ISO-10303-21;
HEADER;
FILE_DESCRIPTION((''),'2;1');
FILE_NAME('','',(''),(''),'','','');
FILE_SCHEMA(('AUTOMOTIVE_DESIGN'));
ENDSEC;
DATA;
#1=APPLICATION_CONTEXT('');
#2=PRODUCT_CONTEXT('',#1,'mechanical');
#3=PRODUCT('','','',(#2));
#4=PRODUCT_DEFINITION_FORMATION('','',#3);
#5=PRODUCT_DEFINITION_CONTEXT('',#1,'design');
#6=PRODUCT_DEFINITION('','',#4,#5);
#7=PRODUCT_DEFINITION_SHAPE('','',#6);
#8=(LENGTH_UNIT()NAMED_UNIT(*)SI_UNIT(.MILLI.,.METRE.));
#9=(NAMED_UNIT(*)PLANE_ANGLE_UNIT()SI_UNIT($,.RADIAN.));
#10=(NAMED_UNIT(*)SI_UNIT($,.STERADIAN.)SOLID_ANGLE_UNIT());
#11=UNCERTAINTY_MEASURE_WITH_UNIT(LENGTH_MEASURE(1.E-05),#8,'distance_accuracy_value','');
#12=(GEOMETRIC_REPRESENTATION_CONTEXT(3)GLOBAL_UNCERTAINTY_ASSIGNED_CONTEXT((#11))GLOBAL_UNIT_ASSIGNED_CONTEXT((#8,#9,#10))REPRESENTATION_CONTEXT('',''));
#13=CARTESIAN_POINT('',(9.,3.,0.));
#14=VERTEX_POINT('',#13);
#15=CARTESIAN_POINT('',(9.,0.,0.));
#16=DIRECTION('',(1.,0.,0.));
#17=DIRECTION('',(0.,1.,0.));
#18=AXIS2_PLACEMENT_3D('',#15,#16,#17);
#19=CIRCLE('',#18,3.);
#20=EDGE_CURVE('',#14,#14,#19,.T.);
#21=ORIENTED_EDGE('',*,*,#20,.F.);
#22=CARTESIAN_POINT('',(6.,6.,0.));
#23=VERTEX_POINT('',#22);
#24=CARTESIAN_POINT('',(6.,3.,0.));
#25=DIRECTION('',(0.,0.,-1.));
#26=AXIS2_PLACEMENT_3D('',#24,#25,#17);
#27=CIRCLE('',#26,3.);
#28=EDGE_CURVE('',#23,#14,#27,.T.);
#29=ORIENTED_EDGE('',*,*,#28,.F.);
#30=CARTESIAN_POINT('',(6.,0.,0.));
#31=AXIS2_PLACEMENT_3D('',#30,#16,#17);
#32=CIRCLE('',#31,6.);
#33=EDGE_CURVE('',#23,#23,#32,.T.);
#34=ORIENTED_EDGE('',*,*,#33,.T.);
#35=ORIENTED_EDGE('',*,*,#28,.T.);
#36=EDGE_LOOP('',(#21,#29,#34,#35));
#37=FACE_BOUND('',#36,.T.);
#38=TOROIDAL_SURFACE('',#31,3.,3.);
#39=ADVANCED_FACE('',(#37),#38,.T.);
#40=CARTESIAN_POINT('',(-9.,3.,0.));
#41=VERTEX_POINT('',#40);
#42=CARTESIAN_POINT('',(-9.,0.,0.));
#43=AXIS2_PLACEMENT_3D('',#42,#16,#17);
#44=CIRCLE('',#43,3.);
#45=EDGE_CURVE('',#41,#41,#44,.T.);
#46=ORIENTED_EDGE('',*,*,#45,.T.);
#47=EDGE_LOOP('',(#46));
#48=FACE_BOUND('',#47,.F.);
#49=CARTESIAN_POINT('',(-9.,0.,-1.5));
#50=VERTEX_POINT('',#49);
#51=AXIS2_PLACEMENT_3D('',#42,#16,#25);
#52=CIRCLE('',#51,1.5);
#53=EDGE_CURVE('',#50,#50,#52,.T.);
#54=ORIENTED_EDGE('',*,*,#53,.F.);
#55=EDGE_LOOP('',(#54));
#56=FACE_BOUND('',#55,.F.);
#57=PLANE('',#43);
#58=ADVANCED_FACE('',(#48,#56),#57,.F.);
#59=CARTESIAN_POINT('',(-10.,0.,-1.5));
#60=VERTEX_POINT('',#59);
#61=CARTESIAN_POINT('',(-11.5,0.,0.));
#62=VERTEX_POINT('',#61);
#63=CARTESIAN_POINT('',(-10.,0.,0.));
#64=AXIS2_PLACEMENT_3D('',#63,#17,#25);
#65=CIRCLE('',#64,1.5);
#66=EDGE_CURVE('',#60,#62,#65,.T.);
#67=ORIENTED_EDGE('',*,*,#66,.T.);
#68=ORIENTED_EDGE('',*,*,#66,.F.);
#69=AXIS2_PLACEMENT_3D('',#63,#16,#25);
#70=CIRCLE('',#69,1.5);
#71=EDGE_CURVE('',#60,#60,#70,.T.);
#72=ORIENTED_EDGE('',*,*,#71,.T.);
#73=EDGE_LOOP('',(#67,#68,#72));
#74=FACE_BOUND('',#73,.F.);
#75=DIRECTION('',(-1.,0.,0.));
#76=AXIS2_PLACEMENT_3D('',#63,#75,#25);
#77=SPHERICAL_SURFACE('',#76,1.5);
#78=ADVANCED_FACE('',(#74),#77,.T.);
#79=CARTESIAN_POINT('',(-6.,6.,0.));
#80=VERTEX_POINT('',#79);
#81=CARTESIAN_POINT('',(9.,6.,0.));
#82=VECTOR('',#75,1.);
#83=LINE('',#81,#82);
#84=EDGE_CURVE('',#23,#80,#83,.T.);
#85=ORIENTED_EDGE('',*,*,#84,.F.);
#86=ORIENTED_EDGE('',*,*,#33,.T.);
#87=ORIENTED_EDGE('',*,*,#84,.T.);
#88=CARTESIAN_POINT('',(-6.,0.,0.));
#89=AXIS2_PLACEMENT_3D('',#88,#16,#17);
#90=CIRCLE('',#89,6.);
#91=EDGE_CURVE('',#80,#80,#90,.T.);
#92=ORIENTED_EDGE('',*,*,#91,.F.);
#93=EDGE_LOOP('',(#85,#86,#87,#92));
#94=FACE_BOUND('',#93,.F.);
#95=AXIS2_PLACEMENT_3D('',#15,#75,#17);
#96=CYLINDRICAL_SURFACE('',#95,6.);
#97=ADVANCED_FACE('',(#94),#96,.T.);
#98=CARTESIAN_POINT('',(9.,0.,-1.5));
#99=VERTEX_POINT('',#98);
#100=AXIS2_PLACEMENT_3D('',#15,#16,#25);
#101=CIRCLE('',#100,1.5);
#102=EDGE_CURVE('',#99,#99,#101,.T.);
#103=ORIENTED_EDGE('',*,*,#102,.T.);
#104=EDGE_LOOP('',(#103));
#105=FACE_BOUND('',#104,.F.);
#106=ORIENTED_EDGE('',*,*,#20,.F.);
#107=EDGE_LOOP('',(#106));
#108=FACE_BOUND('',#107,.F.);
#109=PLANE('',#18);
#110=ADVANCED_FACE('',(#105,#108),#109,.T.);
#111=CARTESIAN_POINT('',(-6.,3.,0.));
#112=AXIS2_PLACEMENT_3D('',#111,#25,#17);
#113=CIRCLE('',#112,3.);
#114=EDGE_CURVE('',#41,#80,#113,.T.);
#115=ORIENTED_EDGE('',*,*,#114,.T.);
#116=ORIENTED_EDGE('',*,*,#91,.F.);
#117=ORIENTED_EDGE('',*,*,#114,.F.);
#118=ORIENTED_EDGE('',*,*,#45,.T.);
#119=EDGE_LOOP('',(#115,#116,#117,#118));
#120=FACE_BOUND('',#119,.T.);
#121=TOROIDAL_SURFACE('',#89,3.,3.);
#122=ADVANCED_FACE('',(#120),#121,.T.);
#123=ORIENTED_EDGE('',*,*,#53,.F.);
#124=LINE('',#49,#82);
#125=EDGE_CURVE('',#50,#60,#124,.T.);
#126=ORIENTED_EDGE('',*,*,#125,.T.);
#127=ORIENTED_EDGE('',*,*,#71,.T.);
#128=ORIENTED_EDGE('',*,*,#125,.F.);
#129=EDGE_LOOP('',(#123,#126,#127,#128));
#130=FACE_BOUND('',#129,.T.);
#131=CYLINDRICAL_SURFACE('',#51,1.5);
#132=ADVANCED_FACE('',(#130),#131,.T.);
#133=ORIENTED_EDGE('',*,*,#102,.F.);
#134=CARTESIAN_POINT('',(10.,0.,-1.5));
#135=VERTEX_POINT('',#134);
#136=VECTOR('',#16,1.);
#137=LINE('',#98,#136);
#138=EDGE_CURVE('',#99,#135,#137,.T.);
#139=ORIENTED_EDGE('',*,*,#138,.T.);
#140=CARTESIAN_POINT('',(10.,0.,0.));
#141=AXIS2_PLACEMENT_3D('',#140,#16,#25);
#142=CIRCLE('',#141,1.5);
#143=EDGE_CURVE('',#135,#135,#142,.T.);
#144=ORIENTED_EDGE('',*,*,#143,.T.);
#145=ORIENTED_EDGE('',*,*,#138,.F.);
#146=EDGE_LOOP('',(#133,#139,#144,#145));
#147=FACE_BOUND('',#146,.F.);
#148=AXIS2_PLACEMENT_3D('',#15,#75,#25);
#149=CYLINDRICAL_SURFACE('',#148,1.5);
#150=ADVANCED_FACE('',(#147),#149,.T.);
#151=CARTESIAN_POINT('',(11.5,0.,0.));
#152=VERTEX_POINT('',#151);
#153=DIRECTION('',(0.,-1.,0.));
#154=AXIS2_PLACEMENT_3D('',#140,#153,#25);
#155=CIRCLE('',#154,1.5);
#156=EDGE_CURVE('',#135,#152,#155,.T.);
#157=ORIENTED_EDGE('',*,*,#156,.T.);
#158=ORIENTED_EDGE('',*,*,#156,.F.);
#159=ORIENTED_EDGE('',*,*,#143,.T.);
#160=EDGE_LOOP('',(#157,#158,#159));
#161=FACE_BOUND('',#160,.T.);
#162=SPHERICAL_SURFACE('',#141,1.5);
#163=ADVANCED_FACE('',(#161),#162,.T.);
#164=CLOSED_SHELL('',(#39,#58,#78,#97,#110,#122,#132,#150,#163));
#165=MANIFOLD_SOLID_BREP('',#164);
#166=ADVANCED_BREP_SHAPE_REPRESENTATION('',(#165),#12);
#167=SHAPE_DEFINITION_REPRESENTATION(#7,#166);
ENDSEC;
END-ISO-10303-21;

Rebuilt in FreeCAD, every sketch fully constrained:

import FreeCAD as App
import Part
import Sketcher

V = App.Vector


def edges_at(feature, points):
    """Names of the edges that pass closest to the given points."""
    edges = feature.Shape.Edges
    near = lambda p: min(range(len(edges)), key=lambda i: edges[i].distToShape(Part.Vertex(*p))[0])
    return sorted({f"Edge{near(p) + 1}" for p in points})


def add_polygon(sketch, points):
    """Adds a closed chain of lines whose ends are joined by coincident constraints."""
    first, n = sketch.GeometryCount, len(points)
    for a, b in zip(points, points[1:] + points[:1]):
        sketch.addGeometry(Part.LineSegment(App.Vector(*a, 0), App.Vector(*b, 0)), False)
    for i in range(n):
        sketch.addConstraint(Sketcher.Constraint("Coincident", first + i, 2, first + (i + 1) % n, 1))

doc = App.newDocument("Part")
body = doc.addObject("PartDesign::Body", "Body")

# Sketch on XY plane
sketch1 = body.newObject("Sketcher::SketchObject", "Sketch")
sketch1.AttachmentSupport = (doc.getObject("XY_Plane"), [""])
sketch1.MapMode = "FlatFace"
add_polygon(sketch1, [(-9, 0), (9, 0), (9, 6), (-9, 6)])  # lines 0-3
sketch1.addConstraint(Sketcher.Constraint("Horizontal", 0))
sketch1.addConstraint(Sketcher.Constraint("Vertical", 1))
sketch1.addConstraint(Sketcher.Constraint("Horizontal", 2))
sketch1.addConstraint(Sketcher.Constraint("Vertical", 3))
sketch1.addConstraint(Sketcher.Constraint("Symmetric", 0, 2, 3, 2, -1, 1))
sketch1.addConstraint(Sketcher.Constraint("DistanceX", 0, 1, 0, 2, 18.0))
sketch1.addConstraint(Sketcher.Constraint("DistanceY", 1, 1, 1, 2, 6.0))
revolution = body.newObject("PartDesign::Revolution", "Revolution")
revolution.Profile = sketch1
revolution.ReferenceAxis = (sketch1, ["H_Axis"])
revolution.Angle = 360

# Sketch on YZ plane
sketch2 = body.newObject("Sketcher::SketchObject", "Sketch001")
sketch2.AttachmentSupport = (doc.getObject("YZ_Plane"), [""])
sketch2.MapMode = "FlatFace"
sketch2.AttachmentOffset = App.Placement(V(0, 0, 9), App.Rotation())
sketch2.addGeometry(Part.Circle(V(0, 0, 0), V(0, 0, 1), 1.5), False)
sketch2.addConstraint(Sketcher.Constraint("Coincident", 0, 3, -1, 1))
sketch2.addConstraint(Sketcher.Constraint("Diameter", 0, 3.0))
pad1 = body.newObject("PartDesign::Pad", "Pad")
pad1.Profile = sketch2
pad1.Length = 2.5
doc.recompute()

fillet = body.newObject("PartDesign::Fillet", "Fillet")
fillet.Base = (pad1, edges_at(pad1, [(11.5, 0, 1.5)]))
fillet.Radius = 1.5
doc.recompute()

mirrored = body.newObject("PartDesign::Mirrored", "Mirrored")
mirrored.Originals = [pad1]
mirrored.MirrorPlane = (doc.getObject("YZ_Plane"), [""])
body.Tip = mirrored
doc.recompute()

fillet2 = body.newObject("PartDesign::Fillet", "Fillet001")
fillet2.Base = (mirrored, edges_at(mirrored, [(-11.5, 0, 1.5)]))
fillet2.Radius = 1.5
doc.recompute()

fillet3 = body.newObject("PartDesign::Fillet", "Fillet002")
fillet3.Base = (fillet2, edges_at(fillet2, [(-9, -6, 0), (9, -6, 0)]))
fillet3.Radius = 3

doc.recompute()
